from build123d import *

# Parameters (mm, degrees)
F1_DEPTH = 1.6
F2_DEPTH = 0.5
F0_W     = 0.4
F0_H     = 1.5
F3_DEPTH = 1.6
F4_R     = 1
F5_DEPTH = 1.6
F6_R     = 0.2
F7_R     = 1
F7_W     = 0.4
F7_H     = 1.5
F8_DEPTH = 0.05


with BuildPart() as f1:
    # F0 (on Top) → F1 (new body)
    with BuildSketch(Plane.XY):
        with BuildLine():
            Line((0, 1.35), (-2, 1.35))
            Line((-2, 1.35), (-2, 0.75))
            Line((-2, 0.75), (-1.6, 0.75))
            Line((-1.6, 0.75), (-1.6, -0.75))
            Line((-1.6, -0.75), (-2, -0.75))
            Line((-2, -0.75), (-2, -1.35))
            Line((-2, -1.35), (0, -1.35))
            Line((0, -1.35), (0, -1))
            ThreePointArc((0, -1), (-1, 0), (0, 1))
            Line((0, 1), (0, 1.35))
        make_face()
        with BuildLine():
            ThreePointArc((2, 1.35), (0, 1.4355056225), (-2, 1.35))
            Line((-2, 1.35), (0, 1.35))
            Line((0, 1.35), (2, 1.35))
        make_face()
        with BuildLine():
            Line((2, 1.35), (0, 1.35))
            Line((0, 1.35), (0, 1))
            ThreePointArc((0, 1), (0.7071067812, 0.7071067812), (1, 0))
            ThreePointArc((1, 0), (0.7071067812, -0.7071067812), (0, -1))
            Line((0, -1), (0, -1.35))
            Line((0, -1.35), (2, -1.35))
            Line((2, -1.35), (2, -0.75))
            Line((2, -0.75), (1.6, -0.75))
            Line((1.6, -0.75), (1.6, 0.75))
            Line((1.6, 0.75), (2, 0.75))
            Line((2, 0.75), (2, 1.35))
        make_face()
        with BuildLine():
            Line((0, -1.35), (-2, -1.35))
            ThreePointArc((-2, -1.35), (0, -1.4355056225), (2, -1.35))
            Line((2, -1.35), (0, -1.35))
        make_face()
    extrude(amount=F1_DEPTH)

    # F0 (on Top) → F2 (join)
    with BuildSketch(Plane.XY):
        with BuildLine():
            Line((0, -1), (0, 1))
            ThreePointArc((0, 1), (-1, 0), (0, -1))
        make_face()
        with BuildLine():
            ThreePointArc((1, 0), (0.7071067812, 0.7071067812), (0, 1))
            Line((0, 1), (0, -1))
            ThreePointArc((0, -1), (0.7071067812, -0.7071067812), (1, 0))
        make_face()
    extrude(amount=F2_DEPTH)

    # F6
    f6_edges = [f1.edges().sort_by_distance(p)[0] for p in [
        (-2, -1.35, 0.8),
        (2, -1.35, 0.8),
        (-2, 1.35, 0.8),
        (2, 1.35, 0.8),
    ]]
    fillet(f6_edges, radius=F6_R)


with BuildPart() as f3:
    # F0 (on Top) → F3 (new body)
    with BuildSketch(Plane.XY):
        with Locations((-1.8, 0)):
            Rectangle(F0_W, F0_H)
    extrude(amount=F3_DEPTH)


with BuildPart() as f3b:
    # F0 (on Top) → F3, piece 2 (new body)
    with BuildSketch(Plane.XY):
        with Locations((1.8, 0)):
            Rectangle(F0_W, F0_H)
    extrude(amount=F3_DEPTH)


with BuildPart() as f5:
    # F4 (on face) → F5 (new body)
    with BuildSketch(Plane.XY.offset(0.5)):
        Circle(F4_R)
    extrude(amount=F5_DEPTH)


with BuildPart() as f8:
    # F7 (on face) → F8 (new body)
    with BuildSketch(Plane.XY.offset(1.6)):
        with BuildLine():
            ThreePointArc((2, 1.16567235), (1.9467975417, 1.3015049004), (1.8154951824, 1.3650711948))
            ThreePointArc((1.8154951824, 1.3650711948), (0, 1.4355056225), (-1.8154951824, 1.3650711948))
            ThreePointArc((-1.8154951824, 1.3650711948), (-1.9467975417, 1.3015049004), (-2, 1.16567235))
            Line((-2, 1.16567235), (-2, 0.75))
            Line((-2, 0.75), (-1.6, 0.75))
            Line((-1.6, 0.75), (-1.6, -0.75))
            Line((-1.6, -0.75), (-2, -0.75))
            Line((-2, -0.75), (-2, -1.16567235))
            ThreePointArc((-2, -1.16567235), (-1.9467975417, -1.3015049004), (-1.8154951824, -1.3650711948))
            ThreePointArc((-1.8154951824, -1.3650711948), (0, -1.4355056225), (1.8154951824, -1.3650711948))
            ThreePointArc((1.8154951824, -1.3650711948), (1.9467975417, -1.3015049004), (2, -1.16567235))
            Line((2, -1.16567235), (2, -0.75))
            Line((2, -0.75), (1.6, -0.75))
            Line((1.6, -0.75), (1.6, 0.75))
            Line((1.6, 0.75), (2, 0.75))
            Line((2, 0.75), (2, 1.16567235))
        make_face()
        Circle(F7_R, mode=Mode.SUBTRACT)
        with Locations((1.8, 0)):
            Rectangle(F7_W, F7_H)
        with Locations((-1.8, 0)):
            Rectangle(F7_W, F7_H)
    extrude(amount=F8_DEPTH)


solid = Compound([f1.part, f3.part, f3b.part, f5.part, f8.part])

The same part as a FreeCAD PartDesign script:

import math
import FreeCAD as App
import Part
import Sketcher
from FreeCAD import Vector
Q = App.Units.Quantity


def edges_at(feature, points):
    """Names of the edges that pass closest to the given points."""
    edges = feature.Shape.Edges
    near = lambda p: min(range(len(edges)), key=lambda i: edges[i].distToShape(Part.Vertex(*p))[0])
    return sorted({f"Edge{near(p) + 1}" for p in points})

doc = App.newDocument("Part")
body = doc.addObject("PartDesign::Body", "Body")

sketch1 = body.newObject("Sketcher::SketchObject", "Sketch")
sketch1.AttachmentSupport = (doc.getObject("XY_Plane"), [""])
sketch1.MapMode = "FlatFace"
sketch1.addGeometry(Part.LineSegment(Vector(-2, 1.35, 0), Vector(-2, 0.75, 0)), False)
sketch1.addGeometry(Part.LineSegment(Vector(-2, 0.75, 0), Vector(-1.6, 0.75, 0)), False)
sketch1.addGeometry(Part.LineSegment(Vector(-1.6, 0.75, 0), Vector(-1.6, -0.75, 0)), False)
sketch1.addGeometry(Part.LineSegment(Vector(-1.6, -0.75, 0), Vector(-2, -0.75, 0)), False)
sketch1.addGeometry(Part.LineSegment(Vector(-2, -0.75, 0), Vector(-2, -1.35, 0)), False)
sketch1.addGeometry(Part.ArcOfCircle(Part.Circle(Vector(0, 22, 0), Vector(0, 0, 1), 23.43), math.radians(-94.9), math.radians(-85.1)), False)
sketch1.addGeometry(Part.LineSegment(Vector(2, -1.35, 0), Vector(2, -0.75, 0)), False)
sketch1.addGeometry(Part.LineSegment(Vector(2, -0.75, 0), Vector(1.6, -0.75, 0)), False)
sketch1.addGeometry(Part.LineSegment(Vector(1.6, -0.75, 0), Vector(1.6, 0.75, 0)), False)
sketch1.addGeometry(Part.LineSegment(Vector(1.6, 0.75, 0), Vector(2, 0.75, 0)), False)
sketch1.addGeometry(Part.LineSegment(Vector(2, 0.75, 0), Vector(2, 1.35, 0)), False)
sketch1.addGeometry(Part.ArcOfCircle(Part.Circle(Vector(0, -22, 0), Vector(0, 0, 1), 23.43), math.radians(85.1), math.radians(94.9)), False)
sketch1.addGeometry(Part.ArcOfCircle(Part.Circle(Vector(0, 0, 0), Vector(0, 0, 1), 1), math.radians(90), math.radians(270)), False)
sketch1.addGeometry(Part.ArcOfCircle(Part.Circle(Vector(0, 0, 0), Vector(0, 0, 1), 1), math.radians(0), math.radians(90)), False)
sketch1.addGeometry(Part.ArcOfCircle(Part.Circle(Vector(0, 0, 0), Vector(0, 0, 1), 1), math.radians(-90), math.radians(0)), False)
sketch1.addConstraint(Sketcher.Constraint("Coincident", 0, 2, 1, 1))
sketch1.addConstraint(Sketcher.Constraint("Coincident", 1, 2, 2, 1))
sketch1.addConstraint(Sketcher.Constraint("Coincident", 2, 2, 3, 1))
sketch1.addConstraint(Sketcher.Constraint("Coincident", 3, 2, 4, 1))
sketch1.addConstraint(Sketcher.Constraint("Coincident", 4, 2, 5, 1))
sketch1.addConstraint(Sketcher.Constraint("Coincident", 5, 2, 6, 1))
sketch1.addConstraint(Sketcher.Constraint("Coincident", 6, 2, 7, 1))
sketch1.addConstraint(Sketcher.Constraint("Coincident", 7, 2, 8, 1))
sketch1.addConstraint(Sketcher.Constraint("Coincident", 8, 2, 9, 1))
sketch1.addConstraint(Sketcher.Constraint("Coincident", 9, 2, 10, 1))
sketch1.addConstraint(Sketcher.Constraint("Coincident", 10, 2, 11, 1))
sketch1.addConstraint(Sketcher.Constraint("Coincident", 11, 2, 0, 1))
sketch1.addConstraint(Sketcher.Constraint("Tangent", 12, 1, 13, 2))
sketch1.addConstraint(Sketcher.Constraint("Tangent", 13, 1, 14, 2))
sketch1.addConstraint(Sketcher.Constraint("Tangent", 14, 1, 12, 2))
sketch1.addConstraint(Sketcher.Constraint("Vertical", 0))
sketch1.addConstraint(Sketcher.Constraint("Horizontal", 1))
sketch1.addConstraint(Sketcher.Constraint("Vertical", 2))
sketch1.addConstraint(Sketcher.Constraint("Horizontal", 3))
sketch1.addConstraint(Sketcher.Constraint("Vertical", 4))
sketch1.addConstraint(Sketcher.Constraint("Vertical", 6))
sketch1.addConstraint(Sketcher.Constraint("Horizontal", 7))
sketch1.addConstraint(Sketcher.Constraint("Vertical", 8))
sketch1.addConstraint(Sketcher.Constraint("Horizontal", 9))
sketch1.addConstraint(Sketcher.Constraint("Vertical", 10))
sketch1.addConstraint(Sketcher.Constraint("Coincident", 12, 3, -1, 1))
sketch1.addConstraint(Sketcher.Constraint("Equal", 5, 11))
sketch1.addConstraint(Sketcher.Constraint("Symmetric", 5, 3, 11, 3, -1, 1))
sketch1.addConstraint(Sketcher.Constraint("Symmetric", 0, 2, 6, 2, -1, 1))
sketch1.addConstraint(Sketcher.Constraint("Symmetric", 2, 2, 8, 2, -1, 1))
sketch1.addConstraint(Sketcher.Constraint("Symmetric", 4, 2, 5, 2, -2))
sketch1.addConstraint(Sketcher.Constraint("Symmetric", 0, 2, 9, 2, -2))
sketch1.addConstraint(Sketcher.Constraint("PointOnObject", 12, 1, -2))
sketch1.addConstraint(Sketcher.Constraint("PointOnObject", 13, 1, -1))
sketch1.addConstraint(Sketcher.Constraint("PointOnObject", 14, 1, -2))
sketch1.addConstraint(Sketcher.Constraint("Radius", 12, Q("1 mm")))
sketch1.addConstraint(Sketcher.Constraint("DistanceX", 1, 1, 1, 2, Q("0.4 mm")))
sketch1.addConstraint(Sketcher.Constraint("DistanceY", 0, 2, 0, 1, Q("0.6 mm")))
sketch1.addConstraint(Sketcher.Constraint("DistanceY", 2, 2, 2, 1, Q("1.5 mm")))
sketch1.addConstraint(Sketcher.Constraint("DistanceX", 0, 2, -1, 1, Q("2 mm")))
sketch1.addConstraint(Sketcher.Constraint("Radius", 5, Q("23.433028 mm")))
pad1 = body.newObject("PartDesign::Pad", "Pad")
pad1.Profile = sketch1
pad1.Length = 1.6

sketch2 = body.newObject("Sketcher::SketchObject", "Sketch001")
sketch2.AttachmentSupport = (doc.getObject("XY_Plane"), [""])
sketch2.MapMode = "FlatFace"
sketch2.addGeometry(Part.ArcOfCircle(Part.Circle(Vector(0, 0, 0), Vector(0, 0, 1), 1), math.radians(90), math.radians(270)), False)
sketch2.addGeometry(Part.ArcOfCircle(Part.Circle(Vector(0, 0, 0), Vector(0, 0, 1), 1), math.radians(-90), math.radians(0)), False)
sketch2.addGeometry(Part.ArcOfCircle(Part.Circle(Vector(0, 0, 0), Vector(0, 0, 1), 1), math.radians(0), math.radians(90)), False)
sketch2.addConstraint(Sketcher.Constraint("Tangent", 0, 2, 1, 1))
sketch2.addConstraint(Sketcher.Constraint("Tangent", 1, 2, 2, 1))
sketch2.addConstraint(Sketcher.Constraint("Tangent", 2, 2, 0, 1))
sketch2.addConstraint(Sketcher.Constraint("Coincident", 0, 3, -1, 1))
sketch2.addConstraint(Sketcher.Constraint("PointOnObject", 0, 2, -2))
sketch2.addConstraint(Sketcher.Constraint("PointOnObject", 1, 2, -1))
sketch2.addConstraint(Sketcher.Constraint("PointOnObject", 2, 2, -2))
sketch2.addConstraint(Sketcher.Constraint("Radius", 0, Q("1 mm")))
pad2 = body.newObject("PartDesign::Pad", "Pad001")
pad2.Profile = sketch2
pad2.Length = 0.5
doc.recompute()

fillet = body.newObject("PartDesign::Fillet", "Fillet")
fillet.Base = (pad2, edges_at(pad2, [
    (-2, -1.35, 0.8),
    (2, -1.35, 0.8),
    (-2, 1.35, 0.8),
    (2, 1.35, 0.8),
]))
fillet.Radius = 0.2
body2 = doc.addObject("PartDesign::Body", "Body001")

sketch3 = body2.newObject("Sketcher::SketchObject", "Sketch002")
sketch3.AttachmentSupport = (doc.getObject("XY_Plane001"), [""])
sketch3.MapMode = "FlatFace"
sketch3.addGeometry(Part.LineSegment(Vector(-2, 0.75, 0), Vector(-2, -0.75, 0)), False)
sketch3.addGeometry(Part.LineSegment(Vector(-2, -0.75, 0), Vector(-1.6, -0.75, 0)), False)
sketch3.addGeometry(Part.LineSegment(Vector(-1.6, -0.75, 0), Vector(-1.6, 0.75, 0)), False)
sketch3.addGeometry(Part.LineSegment(Vector(-1.6, 0.75, 0), Vector(-2, 0.75, 0)), False)
sketch3.addConstraint(Sketcher.Constraint("Coincident", 0, 2, 1, 1))
sketch3.addConstraint(Sketcher.Constraint("Coincident", 1, 2, 2, 1))
sketch3.addConstraint(Sketcher.Constraint("Coincident", 2, 2, 3, 1))
sketch3.addConstraint(Sketcher.Constraint("Coincident", 3, 2, 0, 1))
sketch3.addConstraint(Sketcher.Constraint("Vertical", 0))
sketch3.addConstraint(Sketcher.Constraint("Horizontal", 1))
sketch3.addConstraint(Sketcher.Constraint("Vertical", 2))
sketch3.addConstraint(Sketcher.Constraint("Horizontal", 3))
sketch3.addConstraint(Sketcher.Constraint("DistanceX", 1, 1, 1, 2, Q("0.4 mm")))
sketch3.addConstraint(Sketcher.Constraint("DistanceY", 0, 2, 0, 1, Q("1.5 mm")))
sketch3.addConstraint(Sketcher.Constraint("DistanceX", 0, 2, -1, 1, Q("2 mm")))
sketch3.addConstraint(Sketcher.Constraint("DistanceY", 0, 2, -1, 1, Q("0.75 mm")))
pad3 = body2.newObject("PartDesign::Pad", "Pad002")
pad3.Profile = sketch3
pad3.Length = 1.6
body3 = doc.addObject("PartDesign::Body", "Body002")

sketch4 = body3.newObject("Sketcher::SketchObject", "Sketch003")
sketch4.AttachmentSupport = (doc.getObject("XY_Plane002"), [""])
sketch4.MapMode = "FlatFace"
sketch4.addGeometry(Part.LineSegment(Vector(1.6, 0.75, 0), Vector(1.6, -0.75, 0)), False)
sketch4.addGeometry(Part.LineSegment(Vector(1.6, -0.75, 0), Vector(2, -0.75, 0)), False)
sketch4.addGeometry(Part.LineSegment(Vector(2, -0.75, 0), Vector(2, 0.75, 0)), False)
sketch4.addGeometry(Part.LineSegment(Vector(2, 0.75, 0), Vector(1.6, 0.75, 0)), False)
sketch4.addConstraint(Sketcher.Constraint("Coincident", 0, 2, 1, 1))
sketch4.addConstraint(Sketcher.Constraint("Coincident", 1, 2, 2, 1))
sketch4.addConstraint(Sketcher.Constraint("Coincident", 2, 2, 3, 1))
sketch4.addConstraint(Sketcher.Constraint("Coincident", 3, 2, 0, 1))
sketch4.addConstraint(Sketcher.Constraint("Vertical", 0))
sketch4.addConstraint(Sketcher.Constraint("Horizontal", 1))
sketch4.addConstraint(Sketcher.Constraint("Vertical", 2))
sketch4.addConstraint(Sketcher.Constraint("Horizontal", 3))
sketch4.addConstraint(Sketcher.Constraint("DistanceX", 1, 1, 1, 2, Q("0.4 mm")))
sketch4.addConstraint(Sketcher.Constraint("DistanceY", 0, 2, 0, 1, Q("1.5 mm")))
sketch4.addConstraint(Sketcher.Constraint("DistanceX", -1, 1, 1, 2, Q("2 mm")))
sketch4.addConstraint(Sketcher.Constraint("DistanceY", 0, 2, -1, 1, Q("0.75 mm")))
pad4 = body3.newObject("PartDesign::Pad", "Pad003")
pad4.Profile = sketch4
pad4.Length = 1.6
body4 = doc.addObject("PartDesign::Body", "Body003")

sketch5 = body4.newObject("Sketcher::SketchObject", "Sketch004")
sketch5.AttachmentSupport = (doc.getObject("XY_Plane003"), [""])
sketch5.MapMode = "FlatFace"
sketch5.AttachmentOffset = App.Placement(Vector(0, 0, 0.5), App.Rotation())
sketch5.addGeometry(Part.Circle(Vector(0, 0, 0), Vector(0, 0, 1), 1), False)
sketch5.addConstraint(Sketcher.Constraint("Coincident", 0, 3, -1, 1))
sketch5.addConstraint(Sketcher.Constraint("Diameter", 0, Q("2 mm")))
pad5 = body4.newObject("PartDesign::Pad", "Pad004")
pad5.Profile = sketch5
pad5.Length = 1.6
body5 = doc.addObject("PartDesign::Body", "Body004")

sketch6 = body5.newObject("Sketcher::SketchObject", "Sketch005")
sketch6.AttachmentSupport = (doc.getObject("XY_Plane004"), [""])
sketch6.MapMode = "FlatFace"
sketch6.AttachmentOffset = App.Placement(Vector(0, 0, 1.6), App.Rotation())
sketch6.addGeometry(Part.ArcOfCircle(Part.Circle(Vector(1.8, 1.17, 0), Vector(0, 0, 1), 0.2), math.radians(0), math.radians(86)), False)
sketch6.addGeometry(Part.ArcOfCircle(Part.Circle(Vector(0, -22, 0), Vector(0, 0, 1), 23.43), math.radians(85.56), math.radians(94.44)), False)
sketch6.addGeometry(Part.ArcOfCircle(Part.Circle(Vector(-1.8, 1.17, 0), Vector(0, 0, 1), 0.2), math.radians(94), math.radians(180)), False)
sketch6.addGeometry(Part.LineSegment(Vector(-2, 1.17, 0), Vector(-2, -1.17, 0)), False)
sketch6.addGeometry(Part.ArcOfCircle(Part.Circle(Vector(-1.8, -1.17, 0), Vector(0, 0, 1), 0.2), math.radians(180), math.radians(266)), False)
sketch6.addGeometry(Part.ArcOfCircle(Part.Circle(Vector(0, 22, 0), Vector(0, 0, 1), 23.43), math.radians(-94.44), math.radians(-85.56)), False)
sketch6.addGeometry(Part.ArcOfCircle(Part.Circle(Vector(1.8, -1.17, 0), Vector(0, 0, 1), 0.2), math.radians(-86), math.radians(0)), False)
sketch6.addGeometry(Part.LineSegment(Vector(2, -1.17, 0), Vector(2, 1.17, 0)), False)
sketch6.addGeometry(Part.Circle(Vector(0, 0, 0), Vector(0, 0, 1), 1), False)
sketch6.addConstraint(Sketcher.Constraint("Tangent", 0, 2, 1, 1))
sketch6.addConstraint(Sketcher.Constraint("Tangent", 1, 2, 2, 1))
sketch6.addConstraint(Sketcher.Constraint("Tangent", 2, 2, 3, 1))
sketch6.addConstraint(Sketcher.Constraint("Tangent", 3, 2, 4, 1))
sketch6.addConstraint(Sketcher.Constraint("Tangent", 4, 2, 5, 1))
sketch6.addConstraint(Sketcher.Constraint("Tangent", 5, 2, 6, 1))
sketch6.addConstraint(Sketcher.Constraint("Tangent", 6, 2, 7, 1))
sketch6.addConstraint(Sketcher.Constraint("Tangent", 7, 2, 0, 1))
sketch6.addConstraint(Sketcher.Constraint("Vertical", 3))
sketch6.addConstraint(Sketcher.Constraint("Vertical", 7))
sketch6.addConstraint(Sketcher.Constraint("Coincident", 8, 3, -1, 1))
sketch6.addConstraint(Sketcher.Constraint("Equal", 0, 2))
sketch6.addConstraint(Sketcher.Constraint("Equal", 2, 4))
sketch6.addConstraint(Sketcher.Constraint("Equal", 1, 5))
sketch6.addConstraint(Sketcher.Constraint("Equal", 4, 6))
sketch6.addConstraint(Sketcher.Constraint("Symmetric", 0, 3, 4, 3, -1, 1))
sketch6.addConstraint(Sketcher.Constraint("Symmetric", 1, 3, 5, 3, -1))
sketch6.addConstraint(Sketcher.Constraint("Diameter", 8, Q("2 mm")))
sketch6.addConstraint(Sketcher.Constraint("Radius", 0, Q("0.2 mm")))
sketch6.addConstraint(Sketcher.Constraint("DistanceX", 2, 2, -1, 1, Q("2 mm")))
sketch6.addConstraint(Sketcher.Constraint("Radius", 1, Q("23.433028 mm")))
sketch6.addConstraint(Sketcher.Constraint("DistanceY", 3, 2, 3, 1, Q("2.331345 mm")))
pad6 = body5.newObject("PartDesign::Pad", "Pad005")
pad6.Profile = sketch6
pad6.Length = 0.05

doc.recompute()
